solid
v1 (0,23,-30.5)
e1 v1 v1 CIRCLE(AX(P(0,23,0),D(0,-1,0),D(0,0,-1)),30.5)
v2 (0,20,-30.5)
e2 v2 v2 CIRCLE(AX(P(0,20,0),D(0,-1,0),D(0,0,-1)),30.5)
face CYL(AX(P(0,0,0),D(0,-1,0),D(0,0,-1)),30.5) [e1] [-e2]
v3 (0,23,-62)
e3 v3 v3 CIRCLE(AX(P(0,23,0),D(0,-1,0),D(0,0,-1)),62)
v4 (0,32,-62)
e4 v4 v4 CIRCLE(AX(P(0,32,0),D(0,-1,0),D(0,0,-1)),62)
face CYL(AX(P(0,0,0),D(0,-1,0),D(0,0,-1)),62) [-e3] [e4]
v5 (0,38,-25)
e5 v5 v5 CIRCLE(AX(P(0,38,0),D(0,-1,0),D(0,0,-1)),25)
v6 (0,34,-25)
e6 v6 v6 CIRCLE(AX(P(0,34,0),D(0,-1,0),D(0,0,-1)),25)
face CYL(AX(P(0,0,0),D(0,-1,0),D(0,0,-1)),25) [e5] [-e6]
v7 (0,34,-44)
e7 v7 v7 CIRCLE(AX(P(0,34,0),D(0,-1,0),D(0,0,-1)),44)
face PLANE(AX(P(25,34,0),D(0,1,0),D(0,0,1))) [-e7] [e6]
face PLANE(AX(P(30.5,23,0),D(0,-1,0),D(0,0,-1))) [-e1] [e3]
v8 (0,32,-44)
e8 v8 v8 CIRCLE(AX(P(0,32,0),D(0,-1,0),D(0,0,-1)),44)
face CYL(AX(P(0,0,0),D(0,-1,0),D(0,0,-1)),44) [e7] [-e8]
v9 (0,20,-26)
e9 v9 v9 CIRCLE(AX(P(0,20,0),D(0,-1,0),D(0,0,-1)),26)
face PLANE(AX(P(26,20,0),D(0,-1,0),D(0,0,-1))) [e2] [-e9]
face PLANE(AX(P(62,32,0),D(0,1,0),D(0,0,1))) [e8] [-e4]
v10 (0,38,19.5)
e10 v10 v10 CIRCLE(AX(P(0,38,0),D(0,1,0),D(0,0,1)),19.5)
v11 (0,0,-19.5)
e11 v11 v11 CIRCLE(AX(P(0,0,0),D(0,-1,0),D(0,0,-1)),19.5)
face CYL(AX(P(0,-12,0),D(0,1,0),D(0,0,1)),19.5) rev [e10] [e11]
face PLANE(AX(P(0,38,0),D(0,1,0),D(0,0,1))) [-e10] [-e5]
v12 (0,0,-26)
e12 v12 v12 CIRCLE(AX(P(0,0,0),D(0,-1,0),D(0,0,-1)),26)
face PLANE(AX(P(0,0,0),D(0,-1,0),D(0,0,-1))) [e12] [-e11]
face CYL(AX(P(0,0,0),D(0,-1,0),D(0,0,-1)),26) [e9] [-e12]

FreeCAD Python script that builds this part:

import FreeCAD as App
import Part
import Sketcher
Q = App.Units.Quantity

doc = App.newDocument("Part")
params = doc.addObject("Spreadsheet::Sheet", "Params")
for row, (alias, value) in enumerate([
    ("sketch1_width", "26 mm"),
    ("sketch1_width2", "18 mm"),
    ("sketch1_width3", "19 mm"),
    ("sketch1_width4", "25 mm"),
    ("sketch1_height", "20 mm"),
    ("revolution_angle", "360 deg"),
    ("sketch2_diameter", "39 mm"),
    ("pocket1_length", "50 mm"),
], start=1):
    params.set(f"A{row}", alias)
    params.set(f"B{row}", "=" + value)
    params.setAlias(f"B{row}", alias)

body = doc.addObject("PartDesign::Body", "Body")

sketch1 = doc.addObject("Sketcher::SketchObject", "Sketch")
body.addObject(sketch1)
sketch1.AttachmentSupport = (doc.XY_Plane, [""])
sketch1.MapMode = "FlatFace"
sketch1.addGeometry(Part.LineSegment(App.Vector(0, 0, 0), App.Vector(26, 0, 0)), False)
sketch1.addGeometry(Part.LineSegment(App.Vector(26, 0, 0), App.Vector(26, 20, 0)), False)
sketch1.addGeometry(Part.LineSegment(App.Vector(26, 20, 0), App.Vector(30.5, 20, 0)), False)
sketch1.addGeometry(Part.LineSegment(App.Vector(30.5, 20, 0), App.Vector(30.5, 23, 0)), False)
sketch1.addGeometry(Part.LineSegment(App.Vector(30.5, 23, 0), App.Vector(62, 23, 0)), False)
sketch1.addGeometry(Part.LineSegment(App.Vector(62, 23, 0), App.Vector(62, 32, 0)), False)
sketch1.addGeometry(Part.LineSegment(App.Vector(62, 32, 0), App.Vector(44, 32, 0)), False)
sketch1.addGeometry(Part.LineSegment(App.Vector(44, 32, 0), App.Vector(44, 34, 0)), False)
sketch1.addGeometry(Part.LineSegment(App.Vector(44, 34, 0), App.Vector(25, 34, 0)), False)
sketch1.addGeometry(Part.LineSegment(App.Vector(25, 34, 0), App.Vector(25, 38, 0)), False)
sketch1.addGeometry(Part.LineSegment(App.Vector(25, 38, 0), App.Vector(0, 38, 0)), False)
sketch1.addGeometry(Part.LineSegment(App.Vector(0, 38, 0), App.Vector(0, 0, 0)), False)
sketch1.addConstraint(Sketcher.Constraint("Coincident", 0, 2, 1, 1))
sketch1.addConstraint(Sketcher.Constraint("Coincident", 1, 2, 2, 1))
sketch1.addConstraint(Sketcher.Constraint("Coincident", 2, 2, 3, 1))
sketch1.addConstraint(Sketcher.Constraint("Coincident", 3, 2, 4, 1))
sketch1.addConstraint(Sketcher.Constraint("Coincident", 4, 2, 5, 1))
sketch1.addConstraint(Sketcher.Constraint("Coincident", 5, 2, 6, 1))
sketch1.addConstraint(Sketcher.Constraint("Coincident", 6, 2, 7, 1))
sketch1.addConstraint(Sketcher.Constraint("Coincident", 7, 2, 8, 1))
sketch1.addConstraint(Sketcher.Constraint("Coincident", 8, 2, 9, 1))
sketch1.addConstraint(Sketcher.Constraint("Coincident", 9, 2, 10, 1))
sketch1.addConstraint(Sketcher.Constraint("Coincident", 10, 2, 11, 1))
sketch1.addConstraint(Sketcher.Constraint("Coincident", 11, 2, 0, 1))
sketch1.addConstraint(Sketcher.Constraint("Horizontal", 0))
sketch1.addConstraint(Sketcher.Constraint("Vertical", 1))
sketch1.addConstraint(Sketcher.Constraint("Horizontal", 2))
sketch1.addConstraint(Sketcher.Constraint("Vertical", 3))
sketch1.addConstraint(Sketcher.Constraint("Horizontal", 4))
sketch1.addConstraint(Sketcher.Constraint("Vertical", 5))
sketch1.addConstraint(Sketcher.Constraint("Horizontal", 6))
sketch1.addConstraint(Sketcher.Constraint("Vertical", 7))
sketch1.addConstraint(Sketcher.Constraint("Horizontal", 8))
sketch1.addConstraint(Sketcher.Constraint("Vertical", 9))
sketch1.addConstraint(Sketcher.Constraint("Horizontal", 10))
sketch1.addConstraint(Sketcher.Constraint("Vertical", 11))
sketch1.addConstraint(Sketcher.Constraint("Coincident", 11, 2, -1, 1))
sketch1.addConstraint(Sketcher.Constraint("DistanceX", 0, 1, 0, 2, Q("26 mm")))
sketch1.addConstraint(Sketcher.Constraint("DistanceX", 6, 2, 6, 1, Q("18 mm")))
sketch1.addConstraint(Sketcher.Constraint("DistanceX", 8, 2, 8, 1, Q("19 mm")))
sketch1.addConstraint(Sketcher.Constraint("DistanceX", 10, 2, 10, 1, Q("25 mm")))
sketch1.addConstraint(Sketcher.Constraint("DistanceY", 1, 1, 1, 2, Q("20 mm")))
sketch1.addConstraint(Sketcher.Constraint("DistanceY", 3, 1, 3, 2, Q("3 mm")))
sketch1.addConstraint(Sketcher.Constraint("DistanceY", 5, 1, 5, 2, Q("9 mm")))
sketch1.addConstraint(Sketcher.Constraint("DistanceY", 7, 1, 7, 2, Q("2 mm")))
sketch1.addConstraint(Sketcher.Constraint("DistanceY", 9, 1, 9, 2, Q("4 mm")))
sketch1.addConstraint(Sketcher.Constraint("DistanceX", 2, 1, 2, 2, Q("4.5 mm")))
sketch1.setExpression("Constraints[25]", "Params.sketch1_width")
sketch1.setExpression("Constraints[26]", "Params.sketch1_width2")
sketch1.setExpression("Constraints[27]", "Params.sketch1_width3")
sketch1.setExpression("Constraints[28]", "Params.sketch1_width4")
sketch1.setExpression("Constraints[29]", "Params.sketch1_height")
revolution = doc.addObject("PartDesign::Revolution", "Revolution")
body.addObject(revolution)
revolution.Profile = sketch1
revolution.ReferenceAxis = (sketch1, ["V_Axis"])
revolution.setExpression("Angle", "Params.revolution_angle")

sketch2 = doc.addObject("Sketcher::SketchObject", "Sketch001")
body.addObject(sketch2)
sketch2.AttachmentSupport = (doc.XZ_Plane, [""])
sketch2.MapMode = "FlatFace"
sketch2.AttachmentOffset = App.Placement(App.Vector(0, 0, -38), App.Rotation())
sketch2.addGeometry(Part.Circle(App.Vector(0, 0, 0), App.Vector(0, 0, 1), 20), False)
sketch2.addConstraint(Sketcher.Constraint("Coincident", 0, 3, -1, 1))
sketch2.addConstraint(Sketcher.Constraint("Diameter", 0, Q("39 mm")))
sketch2.setExpression("Constraints[1]", "Params.sketch2_diameter")
pocket1 = doc.addObject("PartDesign::Pocket", "Pocket")
body.addObject(pocket1)
pocket1.Profile = sketch2
pocket1.setExpression("Length", "Params.pocket1_length")
pocket1.Reversed = True

doc.recompute()
